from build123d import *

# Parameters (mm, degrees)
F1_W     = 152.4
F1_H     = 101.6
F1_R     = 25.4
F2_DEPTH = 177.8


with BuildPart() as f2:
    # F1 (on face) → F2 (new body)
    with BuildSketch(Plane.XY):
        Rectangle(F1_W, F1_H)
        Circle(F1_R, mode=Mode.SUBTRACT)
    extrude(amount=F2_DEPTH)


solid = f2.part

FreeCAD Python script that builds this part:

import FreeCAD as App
import Part
import Sketcher
Q = App.Units.Quantity

doc = App.newDocument("Part")
params = doc.addObject("Spreadsheet::Sheet", "Params")
for row, (alias, value) in enumerate([
    ("sketch1_diameter", "2 in"),
    ("sketch1_width", "6 in"),
    ("sketch1_height", "4 in"),
    ("pad1_length", "7 in"),
], start=1):
    params.set(f"A{row}", alias)
    params.set(f"B{row}", "=" + value)
    params.setAlias(f"B{row}", alias)

body = doc.addObject("PartDesign::Body", "Body")

# Sketch on XY plane
sketch1 = body.newObject("Sketcher::SketchObject", "Sketch")
sketch1.AttachmentSupport = (doc.getObject("XY_Plane"), [""])
sketch1.MapMode = "FlatFace"
sketch1.addGeometry(Part.LineSegment(App.Vector(-76.2, 50.8, 0), App.Vector(-76.2, -50.8, 0)), False)
sketch1.addGeometry(Part.LineSegment(App.Vector(-76.2, -50.8, 0), App.Vector(76.2, -50.8, 0)), False)
sketch1.addGeometry(Part.LineSegment(App.Vector(76.2, -50.8, 0), App.Vector(76.2, 50.8, 0)), False)
sketch1.addGeometry(Part.LineSegment(App.Vector(76.2, 50.8, 0), App.Vector(-76.2, 50.8, 0)), False)
sketch1.addGeometry(Part.Circle(App.Vector(0, 0, 0), App.Vector(0, 0, 1), 25.4), False)
sketch1.addConstraint(Sketcher.Constraint("Coincident", 0, 2, 1, 1))
sketch1.addConstraint(Sketcher.Constraint("Coincident", 1, 2, 2, 1))
sketch1.addConstraint(Sketcher.Constraint("Coincident", 2, 2, 3, 1))
sketch1.addConstraint(Sketcher.Constraint("Coincident", 3, 2, 0, 1))
sketch1.addConstraint(Sketcher.Constraint("Vertical", 0))
sketch1.addConstraint(Sketcher.Constraint("Horizontal", 1))
sketch1.addConstraint(Sketcher.Constraint("Vertical", 2))
sketch1.addConstraint(Sketcher.Constraint("Horizontal", 3))
sketch1.addConstraint(Sketcher.Constraint("Coincident", 4, 3, -1, 1))
sketch1.addConstraint(Sketcher.Constraint("Symmetric", 0, 2, 2, 2, -1, 1))
sketch1.addConstraint(Sketcher.Constraint("Diameter", 4, Q("2 in")))
sketch1.addConstraint(Sketcher.Constraint("DistanceX", 1, 1, 1, 2, Q("6 in")))
sketch1.addConstraint(Sketcher.Constraint("DistanceY", 0, 2, 0, 1, Q("4 in")))
sketch1.setExpression("Constraints[10]", "Params.sketch1_diameter")
sketch1.setExpression("Constraints[11]", "Params.sketch1_width")
sketch1.setExpression("Constraints[12]", "Params.sketch1_height")
pad1 = body.newObject("PartDesign::Pad", "Pad")
pad1.Profile = sketch1
pad1.setExpression("Length", "Params.pad1_length")

doc.recompute()
